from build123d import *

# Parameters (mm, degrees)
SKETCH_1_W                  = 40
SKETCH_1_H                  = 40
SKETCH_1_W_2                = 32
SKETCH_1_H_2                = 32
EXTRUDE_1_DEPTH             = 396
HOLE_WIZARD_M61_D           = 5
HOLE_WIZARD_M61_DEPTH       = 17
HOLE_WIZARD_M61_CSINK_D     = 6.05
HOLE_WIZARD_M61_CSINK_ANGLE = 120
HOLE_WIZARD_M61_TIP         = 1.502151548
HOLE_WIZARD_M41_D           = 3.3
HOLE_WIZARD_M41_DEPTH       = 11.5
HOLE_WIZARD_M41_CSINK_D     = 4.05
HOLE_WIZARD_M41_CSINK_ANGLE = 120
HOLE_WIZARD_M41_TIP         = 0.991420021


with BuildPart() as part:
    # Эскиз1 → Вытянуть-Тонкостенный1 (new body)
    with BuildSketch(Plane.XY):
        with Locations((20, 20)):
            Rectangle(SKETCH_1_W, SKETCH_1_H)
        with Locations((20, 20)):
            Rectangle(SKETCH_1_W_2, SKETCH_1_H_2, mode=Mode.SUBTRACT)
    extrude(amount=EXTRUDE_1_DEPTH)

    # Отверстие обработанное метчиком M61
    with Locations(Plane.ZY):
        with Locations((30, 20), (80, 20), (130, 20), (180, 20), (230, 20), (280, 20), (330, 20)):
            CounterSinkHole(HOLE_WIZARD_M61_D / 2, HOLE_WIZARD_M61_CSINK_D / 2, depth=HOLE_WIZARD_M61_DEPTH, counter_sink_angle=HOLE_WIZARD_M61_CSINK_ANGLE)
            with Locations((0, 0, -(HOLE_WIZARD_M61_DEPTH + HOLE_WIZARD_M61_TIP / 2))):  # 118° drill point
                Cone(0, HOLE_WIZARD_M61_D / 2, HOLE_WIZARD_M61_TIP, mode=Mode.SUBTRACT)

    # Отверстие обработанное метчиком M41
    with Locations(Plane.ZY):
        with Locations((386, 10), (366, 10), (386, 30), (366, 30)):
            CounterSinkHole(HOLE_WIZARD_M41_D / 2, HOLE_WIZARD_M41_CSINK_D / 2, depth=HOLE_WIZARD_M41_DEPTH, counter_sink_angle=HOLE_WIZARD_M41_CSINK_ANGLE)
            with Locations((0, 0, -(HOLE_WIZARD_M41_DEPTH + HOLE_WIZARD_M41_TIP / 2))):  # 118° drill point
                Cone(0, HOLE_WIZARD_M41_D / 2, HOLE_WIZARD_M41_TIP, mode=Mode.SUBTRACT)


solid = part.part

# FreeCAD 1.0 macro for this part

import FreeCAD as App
import Part
import Sketcher
from FreeCAD import Vector
Q = App.Units.Quantity


def add_polygon(sketch, points):
    """Adds a closed chain of lines whose ends are joined by coincident constraints."""
    first, n = sketch.GeometryCount, len(points)
    for a, b in zip(points, points[1:] + points[:1]):
        sketch.addGeometry(Part.LineSegment(App.Vector(*a, 0), App.Vector(*b, 0)), False)
    for i in range(n):
        sketch.addConstraint(Sketcher.Constraint("Coincident", first + i, 2, first + (i + 1) % n, 1))

doc = App.newDocument("Part")
params = doc.addObject("Spreadsheet::Sheet", "Params")
for row, (alias, value) in enumerate([
    ("sketch1_width", "40 mm"),
    ("sketch1_width2", "32 mm"),
    ("pad1_length", "396 mm"),
    ("sketch2_diameter", "5 mm"),
    ("hole_diameter", "5 mm"),
    ("hole_depth", "17 mm"),
    ("hole_csink_diameter", "6.05 mm"),
    ("sketch3_diameter", "3.3 mm"),
    ("hole2_diameter", "3.3 mm"),
    ("hole2_depth", "11.5 mm"),
    ("hole2_csink_diameter", "4.05 mm"),
], start=1):
    params.set(f"A{row}", alias)
    params.set(f"B{row}", "=" + value)
    params.setAlias(f"B{row}", alias)

body = doc.addObject("PartDesign::Body", "Body")

# Sketch on XY plane
sketch1 = body.newObject("Sketcher::SketchObject", "Sketch")
sketch1.AttachmentSupport = (doc.getObject("XY_Plane"), [""])
sketch1.MapMode = "FlatFace"
add_polygon(sketch1, [(0, 40), (0, 0), (40, 0), (40, 40)])  # lines 0-3
add_polygon(sketch1, [(36, 4), (4, 4), (4, 36), (36, 36)])  # lines 4-7
sketch1.addConstraint([
    Sketcher.Constraint("Vertical", 0),
    Sketcher.Constraint("Horizontal", 1),
    Sketcher.Constraint("Vertical", 2),
    Sketcher.Constraint("Horizontal", 3),
    Sketcher.Constraint("Horizontal", 4),
    Sketcher.Constraint("Vertical", 5),
    Sketcher.Constraint("Horizontal", 6),
    Sketcher.Constraint("Vertical", 7),
    Sketcher.Constraint("Coincident", 0, 2, -1, 1),
    Sketcher.Constraint("Equal", 3, 0),
    Sketcher.Constraint("Equal", 6, 5),
    Sketcher.Constraint("DistanceX", 1, 1, 1, 2, Q("40 mm")),
    Sketcher.Constraint("DistanceX", 4, 2, 4, 1, Q("32 mm")),
    Sketcher.Constraint("DistanceX", -1, 1, 4, 2, Q("4 mm")),
    Sketcher.Constraint("DistanceY", -1, 1, 4, 2, Q("4 mm")),
])
sketch1.setExpression("Constraints[19]", "Params.sketch1_width")
sketch1.setExpression("Constraints[20]", "Params.sketch1_width2")
pad1 = body.newObject("PartDesign::Pad", "Pad")
pad1.Profile = sketch1
pad1.setExpression("Length", "Params.pad1_length")

# Sketch on YZ plane
sketch2 = body.newObject("Sketcher::SketchObject", "Sketch001")
sketch2.AttachmentSupport = (doc.getObject("YZ_Plane"), [""])
sketch2.MapMode = "FlatFace"
sketch2.addGeometry([
    Part.Circle(Vector(20, 30, 0), Vector(0, 0, 1), 2.5),  # 0
    Part.Circle(Vector(20, 80, 0), Vector(0, 0, 1), 2.5),  # 1
    Part.Circle(Vector(20, 130, 0), Vector(0, 0, 1), 2.5),  # 2
    Part.Circle(Vector(20, 180, 0), Vector(0, 0, 1), 2.5),  # 3
    Part.Circle(Vector(20, 230, 0), Vector(0, 0, 1), 2.5),  # 4
    Part.Circle(Vector(20, 280, 0), Vector(0, 0, 1), 2.5),  # 5
    Part.Circle(Vector(20, 330, 0), Vector(0, 0, 1), 2.5),  # 6
], False)
sketch2.addConstraint([
    Sketcher.Constraint("Equal", 0, 1),
    Sketcher.Constraint("Equal", 1, 2),
    Sketcher.Constraint("Equal", 2, 3),
    Sketcher.Constraint("Equal", 3, 4),
    Sketcher.Constraint("Equal", 4, 5),
    Sketcher.Constraint("Equal", 5, 6),
    Sketcher.Constraint("Vertical", 0, 3, 1, 3),
    Sketcher.Constraint("Vertical", 1, 3, 2, 3),
    Sketcher.Constraint("Vertical", 2, 3, 3, 3),
    Sketcher.Constraint("Vertical", 3, 3, 4, 3),
    Sketcher.Constraint("Vertical", 4, 3, 5, 3),
    Sketcher.Constraint("Vertical", 5, 3, 6, 3),
    Sketcher.Constraint("Diameter", 0, Q("5 mm")),
    Sketcher.Constraint("DistanceX", -1, 1, 0, 3, Q("20 mm")),
    Sketcher.Constraint("DistanceY", -1, 1, 0, 3, Q("30 mm")),
    Sketcher.Constraint("DistanceY", -1, 1, 1, 3, Q("80 mm")),
    Sketcher.Constraint("DistanceY", -1, 1, 2, 3, Q("130 mm")),
    Sketcher.Constraint("DistanceY", -1, 1, 3, 3, Q("180 mm")),
    Sketcher.Constraint("DistanceY", -1, 1, 4, 3, Q("230 mm")),
    Sketcher.Constraint("DistanceY", -1, 1, 5, 3, Q("280 mm")),
    Sketcher.Constraint("DistanceY", -1, 1, 6, 3, Q("330 mm")),
])
sketch2.setExpression("Constraints[12]", "Params.sketch2_diameter")
doc.recompute()
hole = body.newObject("PartDesign::Hole", "Hole")
hole.Profile = sketch2
hole.ThreadType = "None"
hole.setExpression("Diameter", "Params.hole_diameter")
hole.DepthType = "Dimension"
hole.setExpression("Depth", "Params.hole_depth")
hole.DrillPoint = "Angled"
hole.DrillPointAngle = 118
hole.HoleCutType = "Countersink"
hole.setExpression("HoleCutDiameter", "Params.hole_csink_diameter")
hole.HoleCutCountersinkAngle = 120
hole.Reversed = True

# Sketch on YZ plane
sketch3 = body.newObject("Sketcher::SketchObject", "Sketch002")
sketch3.AttachmentSupport = (doc.getObject("YZ_Plane"), [""])
sketch3.MapMode = "FlatFace"
sketch3.addGeometry([
    Part.Circle(Vector(10, 386, 0), Vector(0, 0, 1), 1.65),
    Part.Circle(Vector(10, 366, 0), Vector(0, 0, 1), 1.65),
    Part.Circle(Vector(30, 386, 0), Vector(0, 0, 1), 1.65),
    Part.Circle(Vector(30, 366, 0), Vector(0, 0, 1), 1.65),
], False)
sketch3.addConstraint([
    Sketcher.Constraint("Equal", 0, 1),
    Sketcher.Constraint("Equal", 1, 2),
    Sketcher.Constraint("Equal", 2, 3),
    Sketcher.Constraint("Horizontal", 0, 3, 2, 3),
    Sketcher.Constraint("Horizontal", 1, 3, 3, 3),
    Sketcher.Constraint("Vertical", 0, 3, 1, 3),
    Sketcher.Constraint("Vertical", 2, 3, 3, 3),
    Sketcher.Constraint("Diameter", 0, Q("3.3 mm")),
    Sketcher.Constraint("DistanceX", -1, 1, 0, 3, Q("10 mm")),
    Sketcher.Constraint("DistanceY", -1, 1, 0, 3, Q("386 mm")),
    Sketcher.Constraint("DistanceY", -1, 1, 1, 3, Q("366 mm")),
    Sketcher.Constraint("DistanceX", -1, 1, 2, 3, Q("30 mm")),
])
sketch3.setExpression("Constraints[7]", "Params.sketch3_diameter")
doc.recompute()
hole2 = body.newObject("PartDesign::Hole", "Hole001")
hole2.Profile = sketch3
hole2.ThreadType = "None"
hole2.setExpression("Diameter", "Params.hole2_diameter")
hole2.DepthType = "Dimension"
hole2.setExpression("Depth", "Params.hole2_depth")
hole2.DrillPoint = "Angled"
hole2.DrillPointAngle = 118
hole2.HoleCutType = "Countersink"
hole2.setExpression("HoleCutDiameter", "Params.hole2_csink_diameter")
hole2.HoleCutCountersinkAngle = 120
hole2.Reversed = True

doc.recompute()
